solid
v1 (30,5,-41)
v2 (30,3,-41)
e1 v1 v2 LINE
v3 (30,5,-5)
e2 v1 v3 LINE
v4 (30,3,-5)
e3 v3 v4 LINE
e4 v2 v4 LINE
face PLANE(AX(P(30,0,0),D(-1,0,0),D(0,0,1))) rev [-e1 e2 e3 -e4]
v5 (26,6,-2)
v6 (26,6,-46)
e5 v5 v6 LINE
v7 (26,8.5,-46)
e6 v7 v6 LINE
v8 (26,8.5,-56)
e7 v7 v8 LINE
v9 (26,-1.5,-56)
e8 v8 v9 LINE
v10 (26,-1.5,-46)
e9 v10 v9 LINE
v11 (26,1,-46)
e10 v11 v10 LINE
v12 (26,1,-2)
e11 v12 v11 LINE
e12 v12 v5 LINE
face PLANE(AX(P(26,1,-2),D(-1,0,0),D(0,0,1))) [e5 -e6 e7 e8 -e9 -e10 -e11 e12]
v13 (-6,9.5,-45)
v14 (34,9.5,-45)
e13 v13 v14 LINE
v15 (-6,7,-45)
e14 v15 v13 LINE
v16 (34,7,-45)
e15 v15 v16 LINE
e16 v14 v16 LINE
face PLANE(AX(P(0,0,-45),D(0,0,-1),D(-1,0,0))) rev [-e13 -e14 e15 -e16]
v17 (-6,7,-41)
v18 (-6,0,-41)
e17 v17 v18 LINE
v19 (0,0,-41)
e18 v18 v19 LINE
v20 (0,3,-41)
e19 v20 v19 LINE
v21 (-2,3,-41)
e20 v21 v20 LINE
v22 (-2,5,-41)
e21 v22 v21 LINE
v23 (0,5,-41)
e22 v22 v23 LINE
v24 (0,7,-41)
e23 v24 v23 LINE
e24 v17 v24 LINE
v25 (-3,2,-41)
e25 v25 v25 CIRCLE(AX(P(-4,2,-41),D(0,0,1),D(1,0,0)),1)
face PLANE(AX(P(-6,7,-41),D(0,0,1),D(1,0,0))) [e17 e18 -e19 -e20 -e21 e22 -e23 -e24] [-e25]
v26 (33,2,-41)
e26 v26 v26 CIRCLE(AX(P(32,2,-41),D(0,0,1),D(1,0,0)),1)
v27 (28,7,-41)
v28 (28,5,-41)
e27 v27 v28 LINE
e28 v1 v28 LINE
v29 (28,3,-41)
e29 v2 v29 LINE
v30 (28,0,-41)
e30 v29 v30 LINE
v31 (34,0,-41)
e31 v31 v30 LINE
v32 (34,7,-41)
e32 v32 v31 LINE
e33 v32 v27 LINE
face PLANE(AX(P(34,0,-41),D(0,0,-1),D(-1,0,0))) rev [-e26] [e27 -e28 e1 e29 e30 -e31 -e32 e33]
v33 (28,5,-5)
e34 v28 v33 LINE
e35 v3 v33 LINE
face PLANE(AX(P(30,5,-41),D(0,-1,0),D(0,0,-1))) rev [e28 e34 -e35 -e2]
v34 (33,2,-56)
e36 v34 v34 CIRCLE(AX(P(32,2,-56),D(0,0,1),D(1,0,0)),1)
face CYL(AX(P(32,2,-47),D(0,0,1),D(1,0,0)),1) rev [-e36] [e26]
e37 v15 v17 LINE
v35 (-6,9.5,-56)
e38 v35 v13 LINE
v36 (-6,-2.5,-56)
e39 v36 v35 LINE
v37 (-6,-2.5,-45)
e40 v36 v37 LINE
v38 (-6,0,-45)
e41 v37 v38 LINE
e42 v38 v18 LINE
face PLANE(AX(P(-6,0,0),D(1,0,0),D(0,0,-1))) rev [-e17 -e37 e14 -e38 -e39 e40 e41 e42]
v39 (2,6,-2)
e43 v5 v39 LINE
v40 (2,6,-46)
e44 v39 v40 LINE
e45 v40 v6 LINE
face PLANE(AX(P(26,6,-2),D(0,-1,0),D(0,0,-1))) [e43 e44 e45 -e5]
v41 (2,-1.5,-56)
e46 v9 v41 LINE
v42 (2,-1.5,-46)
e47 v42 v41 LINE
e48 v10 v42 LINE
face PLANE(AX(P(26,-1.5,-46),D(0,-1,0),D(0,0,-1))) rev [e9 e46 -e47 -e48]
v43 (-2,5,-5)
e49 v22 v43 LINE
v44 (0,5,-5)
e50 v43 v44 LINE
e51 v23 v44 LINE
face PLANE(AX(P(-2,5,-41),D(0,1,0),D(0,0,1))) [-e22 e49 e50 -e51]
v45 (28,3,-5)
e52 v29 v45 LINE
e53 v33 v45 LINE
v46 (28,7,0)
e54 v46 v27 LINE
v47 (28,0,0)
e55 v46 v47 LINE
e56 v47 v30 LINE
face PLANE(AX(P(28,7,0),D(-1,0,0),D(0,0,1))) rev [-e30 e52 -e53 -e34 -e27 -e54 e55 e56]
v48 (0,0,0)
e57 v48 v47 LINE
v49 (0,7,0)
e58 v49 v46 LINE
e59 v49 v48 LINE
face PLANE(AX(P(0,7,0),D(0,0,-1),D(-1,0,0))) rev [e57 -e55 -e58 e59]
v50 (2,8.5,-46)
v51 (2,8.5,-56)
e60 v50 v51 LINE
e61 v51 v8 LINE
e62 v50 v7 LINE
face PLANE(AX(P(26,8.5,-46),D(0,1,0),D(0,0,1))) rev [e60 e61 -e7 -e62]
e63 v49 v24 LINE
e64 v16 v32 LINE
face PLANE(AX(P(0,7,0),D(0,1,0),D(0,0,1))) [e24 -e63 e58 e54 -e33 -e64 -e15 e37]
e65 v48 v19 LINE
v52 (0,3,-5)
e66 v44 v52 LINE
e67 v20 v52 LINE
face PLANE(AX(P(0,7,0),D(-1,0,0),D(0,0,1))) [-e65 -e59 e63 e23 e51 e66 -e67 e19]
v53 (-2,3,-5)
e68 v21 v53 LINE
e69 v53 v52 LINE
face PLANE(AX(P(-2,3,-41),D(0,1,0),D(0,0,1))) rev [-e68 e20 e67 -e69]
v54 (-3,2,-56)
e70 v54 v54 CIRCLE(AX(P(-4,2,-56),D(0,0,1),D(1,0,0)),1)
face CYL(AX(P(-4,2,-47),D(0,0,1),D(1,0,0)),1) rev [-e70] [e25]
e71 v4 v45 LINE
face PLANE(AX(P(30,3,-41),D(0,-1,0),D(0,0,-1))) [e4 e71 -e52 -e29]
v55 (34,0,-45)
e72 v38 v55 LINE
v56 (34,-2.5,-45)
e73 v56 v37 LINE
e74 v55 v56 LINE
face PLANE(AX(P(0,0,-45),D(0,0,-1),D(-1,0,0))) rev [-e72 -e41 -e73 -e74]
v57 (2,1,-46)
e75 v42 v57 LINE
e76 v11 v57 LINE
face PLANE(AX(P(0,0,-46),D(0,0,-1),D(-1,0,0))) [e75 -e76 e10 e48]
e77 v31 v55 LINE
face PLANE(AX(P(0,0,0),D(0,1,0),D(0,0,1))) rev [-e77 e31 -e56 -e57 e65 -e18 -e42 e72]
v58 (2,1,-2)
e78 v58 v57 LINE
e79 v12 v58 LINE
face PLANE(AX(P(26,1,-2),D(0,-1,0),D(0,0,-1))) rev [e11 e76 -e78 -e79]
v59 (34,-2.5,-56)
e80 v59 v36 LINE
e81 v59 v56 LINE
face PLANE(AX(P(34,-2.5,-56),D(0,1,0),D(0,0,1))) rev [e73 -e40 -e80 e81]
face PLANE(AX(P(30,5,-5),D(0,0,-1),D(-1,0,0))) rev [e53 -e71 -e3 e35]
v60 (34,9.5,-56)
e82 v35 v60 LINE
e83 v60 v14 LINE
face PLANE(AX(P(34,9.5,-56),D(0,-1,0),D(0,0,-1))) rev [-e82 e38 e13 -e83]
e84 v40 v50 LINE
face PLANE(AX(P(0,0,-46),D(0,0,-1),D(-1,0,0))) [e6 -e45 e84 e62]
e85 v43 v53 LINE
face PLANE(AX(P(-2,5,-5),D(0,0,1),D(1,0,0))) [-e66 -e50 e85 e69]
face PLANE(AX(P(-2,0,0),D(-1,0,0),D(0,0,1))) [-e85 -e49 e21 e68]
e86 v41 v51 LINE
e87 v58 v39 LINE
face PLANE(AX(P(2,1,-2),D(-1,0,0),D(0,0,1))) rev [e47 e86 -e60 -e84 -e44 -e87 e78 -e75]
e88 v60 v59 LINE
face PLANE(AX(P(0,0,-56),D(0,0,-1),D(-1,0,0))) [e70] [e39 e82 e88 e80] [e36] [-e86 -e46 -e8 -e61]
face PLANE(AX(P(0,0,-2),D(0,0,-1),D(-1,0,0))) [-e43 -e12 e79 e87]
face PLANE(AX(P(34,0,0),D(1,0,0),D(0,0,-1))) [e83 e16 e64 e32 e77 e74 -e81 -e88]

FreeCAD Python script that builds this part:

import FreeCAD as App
import Part
import Sketcher
from FreeCAD import Vector


def add_polygon(sketch, points):
    """Adds a closed chain of lines whose ends are joined by coincident constraints."""
    first, n = sketch.GeometryCount, len(points)
    for a, b in zip(points, points[1:] + points[:1]):
        sketch.addGeometry(Part.LineSegment(App.Vector(*a, 0), App.Vector(*b, 0)), False)
    for i in range(n):
        sketch.addConstraint(Sketcher.Constraint("Coincident", first + i, 2, first + (i + 1) % n, 1))

doc = App.newDocument("Part")
body = doc.addObject("PartDesign::Body", "Body")

sketch1 = body.newObject("Sketcher::SketchObject", "Sketch")
sketch1.AttachmentSupport = (doc.getObject("XZ_Plane"), [""])
sketch1.MapMode = "FlatFace"
add_polygon(sketch1, [(0, -45), (0, 0), (28, 0), (28, -45)])
sketch1.addConstraint(Sketcher.Constraint("Vertical", 0))
sketch1.addConstraint(Sketcher.Constraint("Horizontal", 1))
sketch1.addConstraint(Sketcher.Constraint("Vertical", 2))
sketch1.addConstraint(Sketcher.Constraint("Horizontal", 3))
sketch1.addConstraint(Sketcher.Constraint("Coincident", 0, 2, -1, 1))
sketch1.addConstraint(Sketcher.Constraint("DistanceX", 1, 1, 1, 2, 28.0))
sketch1.addConstraint(Sketcher.Constraint("DistanceY", 0, 1, 0, 2, 45.0))
pad1 = body.newObject("PartDesign::Pad", "Pad")
pad1.Profile = sketch1
pad1.Length = 7
pad1.Reversed = True

sketch2 = body.newObject("Sketcher::SketchObject", "Sketch001")
sketch2.AttachmentSupport = (doc.getObject("YZ_Plane"), [""])
sketch2.MapMode = "FlatFace"
sketch2.AttachmentOffset = App.Placement(Vector(0, 0, 28), App.Rotation())
add_polygon(sketch2, [(7, -41), (0, -41), (0, -45), (7, -45)])
sketch2.addConstraint(Sketcher.Constraint("Horizontal", 0))
sketch2.addConstraint(Sketcher.Constraint("Vertical", 1))
sketch2.addConstraint(Sketcher.Constraint("Horizontal", 2))
sketch2.addConstraint(Sketcher.Constraint("Vertical", 3))
sketch2.addConstraint(Sketcher.Constraint("PointOnObject", 0, 2, -2))
sketch2.addConstraint(Sketcher.Constraint("DistanceX", 0, 2, 0, 1, 7.0))
sketch2.addConstraint(Sketcher.Constraint("DistanceY", 1, 2, 1, 1, 4.0))
sketch2.addConstraint(Sketcher.Constraint("DistanceY", 0, 2, -1, 1, 41.0))
pad2 = body.newObject("PartDesign::Pad", "Pad001")
pad2.Profile = sketch2
pad2.Length = 6

sketch3 = body.newObject("Sketcher::SketchObject", "Sketch002")
sketch3.AttachmentSupport = (doc.getObject("YZ_Plane"), [""])
sketch3.MapMode = "FlatFace"
add_polygon(sketch3, [(7, -45), (0, -45), (0, -41), (7, -41)])
sketch3.addConstraint(Sketcher.Constraint("Horizontal", 0))
sketch3.addConstraint(Sketcher.Constraint("Vertical", 1))
sketch3.addConstraint(Sketcher.Constraint("Horizontal", 2))
sketch3.addConstraint(Sketcher.Constraint("Vertical", 3))
sketch3.addConstraint(Sketcher.Constraint("PointOnObject", 0, 2, -2))
sketch3.addConstraint(Sketcher.Constraint("DistanceX", 0, 2, 0, 1, 7.0))
sketch3.addConstraint(Sketcher.Constraint("DistanceY", 1, 1, 1, 2, 4.0))
sketch3.addConstraint(Sketcher.Constraint("DistanceY", 0, 2, -1, 1, 45.0))
pad3 = body.newObject("PartDesign::Pad", "Pad002")
pad3.Profile = sketch3
pad3.Length = 6
pad3.Reversed = True

sketch4 = body.newObject("Sketcher::SketchObject", "Sketch003")
sketch4.AttachmentSupport = (doc.getObject("XY_Plane"), [""])
sketch4.MapMode = "FlatFace"
sketch4.AttachmentOffset = App.Placement(Vector(0, 0, -41), App.Rotation())
sketch4.addGeometry(Part.Circle(Vector(-4, 2, 0), Vector(0, 0, 1), 1), False)
sketch4.addGeometry(Part.Circle(Vector(32, 2, 0), Vector(0, 0, 1), 1), False)
sketch4.addConstraint(Sketcher.Constraint("Equal", 0, 1))
sketch4.addConstraint(Sketcher.Constraint("Horizontal", 0, 3, 1, 3))
sketch4.addConstraint(Sketcher.Constraint("Diameter", 0, 2.0))
sketch4.addConstraint(Sketcher.Constraint("DistanceX", 0, 3, -1, 1, 4.0))
sketch4.addConstraint(Sketcher.Constraint("DistanceY", -1, 1, 0, 3, 2.0))
sketch4.addConstraint(Sketcher.Constraint("DistanceX", -1, 1, 1, 3, 32.0))
pocket1 = body.newObject("PartDesign::Pocket", "Pocket")
pocket1.Profile = sketch4
pocket1.Length = 6

sketch5 = body.newObject("Sketcher::SketchObject", "Sketch004")
sketch5.AttachmentSupport = (doc.getObject("XY_Plane"), [""])
sketch5.MapMode = "FlatFace"
sketch5.AttachmentOffset = App.Placement(Vector(0, 0, -45), App.Rotation())
add_polygon(sketch5, [(26, 6), (26, 1), (2, 1), (2, 6)])
sketch5.addConstraint(Sketcher.Constraint("Vertical", 0))
sketch5.addConstraint(Sketcher.Constraint("Horizontal", 1))
sketch5.addConstraint(Sketcher.Constraint("Vertical", 2))
sketch5.addConstraint(Sketcher.Constraint("Horizontal", 3))
sketch5.addConstraint(Sketcher.Constraint("DistanceX", 1, 2, 1, 1, 24.0))
sketch5.addConstraint(Sketcher.Constraint("DistanceY", 0, 2, 0, 1, 5.0))
sketch5.addConstraint(Sketcher.Constraint("DistanceX", -1, 1, 0, 2, 26.0))
sketch5.addConstraint(Sketcher.Constraint("DistanceY", -1, 1, 0, 2, 1.0))
pocket2 = body.newObject("PartDesign::Pocket", "Pocket001")
pocket2.Profile = sketch5
pocket2.Length = 43
pocket2.Reversed = True

sketch6 = body.newObject("Sketcher::SketchObject", "Sketch005")
sketch6.AttachmentSupport = (doc.getObject("YZ_Plane"), [""])
sketch6.MapMode = "FlatFace"
add_polygon(sketch6, [(5, -41), (3, -41), (3, -5), (5, -5)])
sketch6.addConstraint(Sketcher.Constraint("Horizontal", 0))
sketch6.addConstraint(Sketcher.Constraint("Vertical", 1))
sketch6.addConstraint(Sketcher.Constraint("Horizontal", 2))
sketch6.addConstraint(Sketcher.Constraint("Vertical", 3))
sketch6.addConstraint(Sketcher.Constraint("DistanceX", 0, 2, 0, 1, 2.0))
sketch6.addConstraint(Sketcher.Constraint("DistanceY", 1, 1, 1, 2, 36.0))
sketch6.addConstraint(Sketcher.Constraint("DistanceX", -1, 1, 0, 2, 3.0))
sketch6.addConstraint(Sketcher.Constraint("DistanceY", 0, 2, -1, 1, 41.0))
pad4 = body.newObject("PartDesign::Pad", "Pad003")
pad4.Profile = sketch6
pad4.Length = 2
pad4.Reversed = True

sketch7 = body.newObject("Sketcher::SketchObject", "Sketch006")
sketch7.AttachmentSupport = (doc.getObject("YZ_Plane"), [""])
sketch7.MapMode = "FlatFace"
sketch7.AttachmentOffset = App.Placement(Vector(0, 0, 28), App.Rotation())
add_polygon(sketch7, [(5, -5), (3, -5), (3, -41), (5, -41)])
sketch7.addConstraint(Sketcher.Constraint("Horizontal", 0))
sketch7.addConstraint(Sketcher.Constraint("Vertical", 1))
sketch7.addConstraint(Sketcher.Constraint("Horizontal", 2))
sketch7.addConstraint(Sketcher.Constraint("Vertical", 3))
sketch7.addConstraint(Sketcher.Constraint("DistanceX", 0, 2, 0, 1, 2.0))
sketch7.addConstraint(Sketcher.Constraint("DistanceY", 1, 2, 1, 1, 36.0))
sketch7.addConstraint(Sketcher.Constraint("DistanceX", -1, 1, 0, 2, 3.0))
sketch7.addConstraint(Sketcher.Constraint("DistanceY", 0, 2, -1, 1, 5.0))
pad5 = body.newObject("PartDesign::Pad", "Pad004")
pad5.Profile = sketch7
pad5.Length = 2

sketch8 = body.newObject("Sketcher::SketchObject", "Sketch007")
sketch8.AttachmentSupport = (doc.getObject("XY_Plane"), [""])
sketch8.MapMode = "FlatFace"
sketch8.AttachmentOffset = App.Placement(Vector(0, 0, -45), App.Rotation())
add_polygon(sketch8, [(34, 10), (34, -2), (-6, -2), (-6, 10)])
sketch8.addConstraint(Sketcher.Constraint("Vertical", 0))
sketch8.addConstraint(Sketcher.Constraint("Horizontal", 1))
sketch8.addConstraint(Sketcher.Constraint("Vertical", 2))
sketch8.addConstraint(Sketcher.Constraint("Horizontal", 3))
sketch8.addConstraint(Sketcher.Constraint("DistanceX", 1, 2, 1, 1, 40.0))
sketch8.addConstraint(Sketcher.Constraint("DistanceY", 0, 2, 0, 1, 12.0))
sketch8.addConstraint(Sketcher.Constraint("DistanceX", -1, 1, 0, 2, 34.0))
sketch8.addConstraint(Sketcher.Constraint("DistanceY", 0, 2, -1, 1, 2.5))
pad6 = body.newObject("PartDesign::Pad", "Pad005")
pad6.Profile = sketch8
pad6.Length = 11
pad6.Reversed = True

sketch9 = body.newObject("Sketcher::SketchObject", "Sketch008")
sketch9.AttachmentSupport = (doc.getObject("XY_Plane"), [""])
sketch9.MapMode = "FlatFace"
sketch9.AttachmentOffset = App.Placement(Vector(0, 0, -56), App.Rotation())
add_polygon(sketch9, [(26, 8), (26, -2), (2, -2), (2, 8)])
sketch9.addConstraint(Sketcher.Constraint("Vertical", 0))
sketch9.addConstraint(Sketcher.Constraint("Horizontal", 1))
sketch9.addConstraint(Sketcher.Constraint("Vertical", 2))
sketch9.addConstraint(Sketcher.Constraint("Horizontal", 3))
sketch9.addConstraint(Sketcher.Constraint("DistanceX", 1, 2, 1, 1, 24.0))
sketch9.addConstraint(Sketcher.Constraint("DistanceY", 0, 2, 0, 1, 10.0))
sketch9.addConstraint(Sketcher.Constraint("DistanceX", -1, 1, 0, 2, 26.0))
sketch9.addConstraint(Sketcher.Constraint("DistanceY", 0, 2, -1, 1, 1.5))
pocket3 = body.newObject("PartDesign::Pocket", "Pocket002")
pocket3.Profile = sketch9
pocket3.Length = 10
pocket3.Reversed = True

sketch10 = body.newObject("Sketcher::SketchObject", "Sketch009")
sketch10.AttachmentSupport = (doc.getObject("XY_Plane"), [""])
sketch10.MapMode = "FlatFace"
sketch10.AttachmentOffset = App.Placement(Vector(0, 0, -46), App.Rotation())
add_polygon(sketch10, [(26, 6), (26, 1), (2, 1), (2, 6)])
sketch10.addConstraint(Sketcher.Constraint("Vertical", 0))
sketch10.addConstraint(Sketcher.Constraint("Horizontal", 1))
sketch10.addConstraint(Sketcher.Constraint("Vertical", 2))
sketch10.addConstraint(Sketcher.Constraint("Horizontal", 3))
sketch10.addConstraint(Sketcher.Constraint("DistanceX", 1, 2, 1, 1, 24.0))
sketch10.addConstraint(Sketcher.Constraint("DistanceY", 0, 2, 0, 1, 5.0))
sketch10.addConstraint(Sketcher.Constraint("DistanceX", -1, 1, 0, 2, 26.0))
sketch10.addConstraint(Sketcher.Constraint("DistanceY", -1, 1, 0, 2, 1.0))
pocket4 = body.newObject("PartDesign::Pocket", "Pocket003")
pocket4.Profile = sketch10
pocket4.Length = 1
pocket4.Reversed = True

sketch11 = body.newObject("Sketcher::SketchObject", "Sketch010")
sketch11.AttachmentSupport = (doc.getObject("XY_Plane"), [""])
sketch11.MapMode = "FlatFace"
sketch11.AttachmentOffset = App.Placement(Vector(0, 0, -45), App.Rotation())
sketch11.addGeometry(Part.Circle(Vector(32, 2, 0), Vector(0, 0, 1), 1), False)
sketch11.addConstraint(Sketcher.Constraint("Diameter", 0, 2.0))
sketch11.addConstraint(Sketcher.Constraint("DistanceX", -1, 1, 0, 3, 32.0))
sketch11.addConstraint(Sketcher.Constraint("DistanceY", -1, 1, 0, 3, 2.0))
pocket5 = body.newObject("PartDesign::Pocket", "Pocket004")
pocket5.Profile = sketch11
pocket5.Length = 11

sketch12 = body.newObject("Sketcher::SketchObject", "Sketch011")
sketch12.AttachmentSupport = (doc.getObject("XY_Plane"), [""])
sketch12.MapMode = "FlatFace"
sketch12.AttachmentOffset = App.Placement(Vector(0, 0, -45), App.Rotation())
sketch12.addGeometry(Part.Circle(Vector(-4, 2, 0), Vector(0, 0, 1), 1), False)
sketch12.addConstraint(Sketcher.Constraint("Diameter", 0, 2.0))
sketch12.addConstraint(Sketcher.Constraint("DistanceX", 0, 3, -1, 1, 4.0))
sketch12.addConstraint(Sketcher.Constraint("DistanceY", -1, 1, 0, 3, 2.0))
pocket6 = body.newObject("PartDesign::Pocket", "Pocket005")
pocket6.Profile = sketch12
pocket6.Length = 11

doc.recompute()
